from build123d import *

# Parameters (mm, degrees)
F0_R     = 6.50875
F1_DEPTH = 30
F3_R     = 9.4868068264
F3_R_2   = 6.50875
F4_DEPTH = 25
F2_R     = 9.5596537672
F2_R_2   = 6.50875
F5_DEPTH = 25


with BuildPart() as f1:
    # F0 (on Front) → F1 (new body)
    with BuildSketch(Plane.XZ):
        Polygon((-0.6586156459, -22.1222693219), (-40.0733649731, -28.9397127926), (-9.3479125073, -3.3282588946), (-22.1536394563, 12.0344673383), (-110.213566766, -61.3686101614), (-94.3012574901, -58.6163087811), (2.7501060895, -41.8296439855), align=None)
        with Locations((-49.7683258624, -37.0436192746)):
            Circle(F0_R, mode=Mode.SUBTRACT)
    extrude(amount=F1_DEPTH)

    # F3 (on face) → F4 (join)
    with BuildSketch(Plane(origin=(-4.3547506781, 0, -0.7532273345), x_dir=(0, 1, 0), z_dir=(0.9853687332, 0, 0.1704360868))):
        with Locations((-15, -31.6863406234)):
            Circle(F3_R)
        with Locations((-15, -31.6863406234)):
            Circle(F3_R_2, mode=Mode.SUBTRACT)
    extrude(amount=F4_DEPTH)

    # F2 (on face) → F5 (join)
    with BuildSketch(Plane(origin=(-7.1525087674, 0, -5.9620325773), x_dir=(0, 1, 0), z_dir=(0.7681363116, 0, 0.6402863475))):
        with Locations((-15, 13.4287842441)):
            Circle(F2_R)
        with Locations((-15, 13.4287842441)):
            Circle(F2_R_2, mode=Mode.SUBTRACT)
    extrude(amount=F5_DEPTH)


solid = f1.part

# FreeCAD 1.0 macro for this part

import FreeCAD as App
import Part
import Sketcher
from FreeCAD import Vector
Q = App.Units.Quantity

doc = App.newDocument("Part")
body = doc.addObject("PartDesign::Body", "Body")

# Sketch on XZ plane
sketch1 = body.newObject("Sketcher::SketchObject", "Sketch")
sketch1.AttachmentSupport = (doc.getObject("XZ_Plane"), [""])
sketch1.MapMode = "FlatFace"
sketch1.addGeometry(Part.LineSegment(Vector(-1, -22, 0), Vector(-40, -29, 0)), False)
sketch1.addGeometry(Part.LineSegment(Vector(-40, -29, 0), Vector(-9, -3, 0)), False)
sketch1.addGeometry(Part.LineSegment(Vector(-9, -3, 0), Vector(-22, 12, 0)), False)
sketch1.addGeometry(Part.LineSegment(Vector(-22, 12, 0), Vector(-110, -61, 0)), False)
sketch1.addGeometry(Part.LineSegment(Vector(-110, -61, 0), Vector(-94, -59, 0)), False)
sketch1.addGeometry(Part.LineSegment(Vector(-94, -59, 0), Vector(3, -42, 0)), False)
sketch1.addGeometry(Part.LineSegment(Vector(3, -42, 0), Vector(-1, -22, 0)), False)
sketch1.addGeometry(Part.Circle(Vector(-50, -37, 0), Vector(0, 0, 1), 7), False)
sketch1.addConstraint(Sketcher.Constraint("Coincident", 0, 2, 1, 1))
sketch1.addConstraint(Sketcher.Constraint("Coincident", 1, 2, 2, 1))
sketch1.addConstraint(Sketcher.Constraint("Coincident", 2, 2, 3, 1))
sketch1.addConstraint(Sketcher.Constraint("Coincident", 3, 2, 4, 1))
sketch1.addConstraint(Sketcher.Constraint("Coincident", 4, 2, 5, 1))
sketch1.addConstraint(Sketcher.Constraint("Coincident", 5, 2, 6, 1))
sketch1.addConstraint(Sketcher.Constraint("Coincident", 6, 2, 0, 1))
sketch1.addConstraint(Sketcher.Constraint("Perpendicular", 1, 2))
sketch1.addConstraint(Sketcher.Constraint("Perpendicular", 2, 3))
sketch1.addConstraint(Sketcher.Constraint("Parallel", 0, 4))
sketch1.addConstraint(Sketcher.Constraint("Parallel", 4, 5))
sketch1.addConstraint(Sketcher.Constraint("Perpendicular", 5, 6))
sketch1.addConstraint(Sketcher.Constraint("Equal", 0, 1))
sketch1.addConstraint(Sketcher.Constraint("Equal", 2, 6))
sketch1.addConstraint(Sketcher.Constraint("Distance", 0, Q("40 mm")))
sketch1.addConstraint(Sketcher.Constraint("Distance", 2, Q("20 mm")))
sketch1.addConstraint(Sketcher.Constraint("Diameter", 7, Q("13.0175 mm")))
sketch1.addConstraint(Sketcher.Constraint("DistanceX", 3, 2, 0, 2, Q("70.140202 mm")))
sketch1.addConstraint(Sketcher.Constraint("DistanceY", 3, 2, 4, 2, Q("2.752301 mm")))
sketch1.addConstraint(Sketcher.Constraint("DistanceY", 7, 3, -1, 1, Q("37.043619 mm")))
sketch1.addConstraint(Sketcher.Constraint("DistanceY", 1, 2, -1, 1, Q("3.328259 mm")))
sketch1.addConstraint(Sketcher.Constraint("DistanceX", 2, 2, -1, 1, Q("22.153639 mm")))
sketch1.addConstraint(Sketcher.Constraint("DistanceY", 3, 2, -1, 1, Q("61.36861 mm")))
sketch1.addConstraint(Sketcher.Constraint("DistanceX", 7, 3, 0, 2, Q("9.694961 mm")))
pad1 = body.newObject("PartDesign::Pad", "Pad")
pad1.Profile = sketch1
pad1.Length = 30

# Sketch on an angled plane
sketch2 = body.newObject("Sketcher::SketchObject", "Sketch001")
sketch2.Placement = App.Placement(Vector(-4.354751, 0, -0.753227), App.Rotation(Vector(0, 1, 0), Vector(-0.170436087, 0, 0.985368733), Vector(0.985368733, 0, 0.170436087), "ZXY"))
sketch2.addGeometry(Part.Circle(Vector(-15, -32, 0), Vector(0, 0, 1), 9), False)
sketch2.addGeometry(Part.Circle(Vector(-15, -32, 0), Vector(0, 0, 1), 7), False)
sketch2.addConstraint(Sketcher.Constraint("Coincident", 1, 3, 0, 3))
sketch2.addConstraint(Sketcher.Constraint("DistanceX", 0, 3, -1, 1, Q("15 mm")))
sketch2.addConstraint(Sketcher.Constraint("Diameter", 1, Q("13.0175 mm")))
sketch2.addConstraint(Sketcher.Constraint("Diameter", 0, Q("18.973614 mm")))
sketch2.addConstraint(Sketcher.Constraint("DistanceY", 0, 3, -1, 1, Q("31.686341 mm")))
pad2 = body.newObject("PartDesign::Pad", "Pad001")
pad2.Profile = sketch2
pad2.Length = 25

# Sketch on an angled plane
sketch3 = body.newObject("Sketcher::SketchObject", "Sketch002")
sketch3.Placement = App.Placement(Vector(-7.152509, 0, -5.962033), App.Rotation(Vector(0, 1, 0), Vector(-0.640286348, 0, 0.768136312), Vector(0.768136312, 0, 0.640286348), "ZXY"))
sketch3.addGeometry(Part.Circle(Vector(-15, 13, 0), Vector(0, 0, 1), 10), False)
sketch3.addGeometry(Part.Circle(Vector(-15, 13, 0), Vector(0, 0, 1), 7), False)
sketch3.addConstraint(Sketcher.Constraint("Coincident", 1, 3, 0, 3))
sketch3.addConstraint(Sketcher.Constraint("DistanceX", 0, 3, -1, 1, Q("15 mm")))
sketch3.addConstraint(Sketcher.Constraint("Diameter", 1, Q("13.0175 mm")))
sketch3.addConstraint(Sketcher.Constraint("Diameter", 0, Q("19.119308 mm")))
sketch3.addConstraint(Sketcher.Constraint("DistanceY", -1, 1, 0, 3, Q("13.428784 mm")))
pad3 = body.newObject("PartDesign::Pad", "Pad002")
pad3.Profile = sketch3
pad3.Length = 25

doc.recompute()
